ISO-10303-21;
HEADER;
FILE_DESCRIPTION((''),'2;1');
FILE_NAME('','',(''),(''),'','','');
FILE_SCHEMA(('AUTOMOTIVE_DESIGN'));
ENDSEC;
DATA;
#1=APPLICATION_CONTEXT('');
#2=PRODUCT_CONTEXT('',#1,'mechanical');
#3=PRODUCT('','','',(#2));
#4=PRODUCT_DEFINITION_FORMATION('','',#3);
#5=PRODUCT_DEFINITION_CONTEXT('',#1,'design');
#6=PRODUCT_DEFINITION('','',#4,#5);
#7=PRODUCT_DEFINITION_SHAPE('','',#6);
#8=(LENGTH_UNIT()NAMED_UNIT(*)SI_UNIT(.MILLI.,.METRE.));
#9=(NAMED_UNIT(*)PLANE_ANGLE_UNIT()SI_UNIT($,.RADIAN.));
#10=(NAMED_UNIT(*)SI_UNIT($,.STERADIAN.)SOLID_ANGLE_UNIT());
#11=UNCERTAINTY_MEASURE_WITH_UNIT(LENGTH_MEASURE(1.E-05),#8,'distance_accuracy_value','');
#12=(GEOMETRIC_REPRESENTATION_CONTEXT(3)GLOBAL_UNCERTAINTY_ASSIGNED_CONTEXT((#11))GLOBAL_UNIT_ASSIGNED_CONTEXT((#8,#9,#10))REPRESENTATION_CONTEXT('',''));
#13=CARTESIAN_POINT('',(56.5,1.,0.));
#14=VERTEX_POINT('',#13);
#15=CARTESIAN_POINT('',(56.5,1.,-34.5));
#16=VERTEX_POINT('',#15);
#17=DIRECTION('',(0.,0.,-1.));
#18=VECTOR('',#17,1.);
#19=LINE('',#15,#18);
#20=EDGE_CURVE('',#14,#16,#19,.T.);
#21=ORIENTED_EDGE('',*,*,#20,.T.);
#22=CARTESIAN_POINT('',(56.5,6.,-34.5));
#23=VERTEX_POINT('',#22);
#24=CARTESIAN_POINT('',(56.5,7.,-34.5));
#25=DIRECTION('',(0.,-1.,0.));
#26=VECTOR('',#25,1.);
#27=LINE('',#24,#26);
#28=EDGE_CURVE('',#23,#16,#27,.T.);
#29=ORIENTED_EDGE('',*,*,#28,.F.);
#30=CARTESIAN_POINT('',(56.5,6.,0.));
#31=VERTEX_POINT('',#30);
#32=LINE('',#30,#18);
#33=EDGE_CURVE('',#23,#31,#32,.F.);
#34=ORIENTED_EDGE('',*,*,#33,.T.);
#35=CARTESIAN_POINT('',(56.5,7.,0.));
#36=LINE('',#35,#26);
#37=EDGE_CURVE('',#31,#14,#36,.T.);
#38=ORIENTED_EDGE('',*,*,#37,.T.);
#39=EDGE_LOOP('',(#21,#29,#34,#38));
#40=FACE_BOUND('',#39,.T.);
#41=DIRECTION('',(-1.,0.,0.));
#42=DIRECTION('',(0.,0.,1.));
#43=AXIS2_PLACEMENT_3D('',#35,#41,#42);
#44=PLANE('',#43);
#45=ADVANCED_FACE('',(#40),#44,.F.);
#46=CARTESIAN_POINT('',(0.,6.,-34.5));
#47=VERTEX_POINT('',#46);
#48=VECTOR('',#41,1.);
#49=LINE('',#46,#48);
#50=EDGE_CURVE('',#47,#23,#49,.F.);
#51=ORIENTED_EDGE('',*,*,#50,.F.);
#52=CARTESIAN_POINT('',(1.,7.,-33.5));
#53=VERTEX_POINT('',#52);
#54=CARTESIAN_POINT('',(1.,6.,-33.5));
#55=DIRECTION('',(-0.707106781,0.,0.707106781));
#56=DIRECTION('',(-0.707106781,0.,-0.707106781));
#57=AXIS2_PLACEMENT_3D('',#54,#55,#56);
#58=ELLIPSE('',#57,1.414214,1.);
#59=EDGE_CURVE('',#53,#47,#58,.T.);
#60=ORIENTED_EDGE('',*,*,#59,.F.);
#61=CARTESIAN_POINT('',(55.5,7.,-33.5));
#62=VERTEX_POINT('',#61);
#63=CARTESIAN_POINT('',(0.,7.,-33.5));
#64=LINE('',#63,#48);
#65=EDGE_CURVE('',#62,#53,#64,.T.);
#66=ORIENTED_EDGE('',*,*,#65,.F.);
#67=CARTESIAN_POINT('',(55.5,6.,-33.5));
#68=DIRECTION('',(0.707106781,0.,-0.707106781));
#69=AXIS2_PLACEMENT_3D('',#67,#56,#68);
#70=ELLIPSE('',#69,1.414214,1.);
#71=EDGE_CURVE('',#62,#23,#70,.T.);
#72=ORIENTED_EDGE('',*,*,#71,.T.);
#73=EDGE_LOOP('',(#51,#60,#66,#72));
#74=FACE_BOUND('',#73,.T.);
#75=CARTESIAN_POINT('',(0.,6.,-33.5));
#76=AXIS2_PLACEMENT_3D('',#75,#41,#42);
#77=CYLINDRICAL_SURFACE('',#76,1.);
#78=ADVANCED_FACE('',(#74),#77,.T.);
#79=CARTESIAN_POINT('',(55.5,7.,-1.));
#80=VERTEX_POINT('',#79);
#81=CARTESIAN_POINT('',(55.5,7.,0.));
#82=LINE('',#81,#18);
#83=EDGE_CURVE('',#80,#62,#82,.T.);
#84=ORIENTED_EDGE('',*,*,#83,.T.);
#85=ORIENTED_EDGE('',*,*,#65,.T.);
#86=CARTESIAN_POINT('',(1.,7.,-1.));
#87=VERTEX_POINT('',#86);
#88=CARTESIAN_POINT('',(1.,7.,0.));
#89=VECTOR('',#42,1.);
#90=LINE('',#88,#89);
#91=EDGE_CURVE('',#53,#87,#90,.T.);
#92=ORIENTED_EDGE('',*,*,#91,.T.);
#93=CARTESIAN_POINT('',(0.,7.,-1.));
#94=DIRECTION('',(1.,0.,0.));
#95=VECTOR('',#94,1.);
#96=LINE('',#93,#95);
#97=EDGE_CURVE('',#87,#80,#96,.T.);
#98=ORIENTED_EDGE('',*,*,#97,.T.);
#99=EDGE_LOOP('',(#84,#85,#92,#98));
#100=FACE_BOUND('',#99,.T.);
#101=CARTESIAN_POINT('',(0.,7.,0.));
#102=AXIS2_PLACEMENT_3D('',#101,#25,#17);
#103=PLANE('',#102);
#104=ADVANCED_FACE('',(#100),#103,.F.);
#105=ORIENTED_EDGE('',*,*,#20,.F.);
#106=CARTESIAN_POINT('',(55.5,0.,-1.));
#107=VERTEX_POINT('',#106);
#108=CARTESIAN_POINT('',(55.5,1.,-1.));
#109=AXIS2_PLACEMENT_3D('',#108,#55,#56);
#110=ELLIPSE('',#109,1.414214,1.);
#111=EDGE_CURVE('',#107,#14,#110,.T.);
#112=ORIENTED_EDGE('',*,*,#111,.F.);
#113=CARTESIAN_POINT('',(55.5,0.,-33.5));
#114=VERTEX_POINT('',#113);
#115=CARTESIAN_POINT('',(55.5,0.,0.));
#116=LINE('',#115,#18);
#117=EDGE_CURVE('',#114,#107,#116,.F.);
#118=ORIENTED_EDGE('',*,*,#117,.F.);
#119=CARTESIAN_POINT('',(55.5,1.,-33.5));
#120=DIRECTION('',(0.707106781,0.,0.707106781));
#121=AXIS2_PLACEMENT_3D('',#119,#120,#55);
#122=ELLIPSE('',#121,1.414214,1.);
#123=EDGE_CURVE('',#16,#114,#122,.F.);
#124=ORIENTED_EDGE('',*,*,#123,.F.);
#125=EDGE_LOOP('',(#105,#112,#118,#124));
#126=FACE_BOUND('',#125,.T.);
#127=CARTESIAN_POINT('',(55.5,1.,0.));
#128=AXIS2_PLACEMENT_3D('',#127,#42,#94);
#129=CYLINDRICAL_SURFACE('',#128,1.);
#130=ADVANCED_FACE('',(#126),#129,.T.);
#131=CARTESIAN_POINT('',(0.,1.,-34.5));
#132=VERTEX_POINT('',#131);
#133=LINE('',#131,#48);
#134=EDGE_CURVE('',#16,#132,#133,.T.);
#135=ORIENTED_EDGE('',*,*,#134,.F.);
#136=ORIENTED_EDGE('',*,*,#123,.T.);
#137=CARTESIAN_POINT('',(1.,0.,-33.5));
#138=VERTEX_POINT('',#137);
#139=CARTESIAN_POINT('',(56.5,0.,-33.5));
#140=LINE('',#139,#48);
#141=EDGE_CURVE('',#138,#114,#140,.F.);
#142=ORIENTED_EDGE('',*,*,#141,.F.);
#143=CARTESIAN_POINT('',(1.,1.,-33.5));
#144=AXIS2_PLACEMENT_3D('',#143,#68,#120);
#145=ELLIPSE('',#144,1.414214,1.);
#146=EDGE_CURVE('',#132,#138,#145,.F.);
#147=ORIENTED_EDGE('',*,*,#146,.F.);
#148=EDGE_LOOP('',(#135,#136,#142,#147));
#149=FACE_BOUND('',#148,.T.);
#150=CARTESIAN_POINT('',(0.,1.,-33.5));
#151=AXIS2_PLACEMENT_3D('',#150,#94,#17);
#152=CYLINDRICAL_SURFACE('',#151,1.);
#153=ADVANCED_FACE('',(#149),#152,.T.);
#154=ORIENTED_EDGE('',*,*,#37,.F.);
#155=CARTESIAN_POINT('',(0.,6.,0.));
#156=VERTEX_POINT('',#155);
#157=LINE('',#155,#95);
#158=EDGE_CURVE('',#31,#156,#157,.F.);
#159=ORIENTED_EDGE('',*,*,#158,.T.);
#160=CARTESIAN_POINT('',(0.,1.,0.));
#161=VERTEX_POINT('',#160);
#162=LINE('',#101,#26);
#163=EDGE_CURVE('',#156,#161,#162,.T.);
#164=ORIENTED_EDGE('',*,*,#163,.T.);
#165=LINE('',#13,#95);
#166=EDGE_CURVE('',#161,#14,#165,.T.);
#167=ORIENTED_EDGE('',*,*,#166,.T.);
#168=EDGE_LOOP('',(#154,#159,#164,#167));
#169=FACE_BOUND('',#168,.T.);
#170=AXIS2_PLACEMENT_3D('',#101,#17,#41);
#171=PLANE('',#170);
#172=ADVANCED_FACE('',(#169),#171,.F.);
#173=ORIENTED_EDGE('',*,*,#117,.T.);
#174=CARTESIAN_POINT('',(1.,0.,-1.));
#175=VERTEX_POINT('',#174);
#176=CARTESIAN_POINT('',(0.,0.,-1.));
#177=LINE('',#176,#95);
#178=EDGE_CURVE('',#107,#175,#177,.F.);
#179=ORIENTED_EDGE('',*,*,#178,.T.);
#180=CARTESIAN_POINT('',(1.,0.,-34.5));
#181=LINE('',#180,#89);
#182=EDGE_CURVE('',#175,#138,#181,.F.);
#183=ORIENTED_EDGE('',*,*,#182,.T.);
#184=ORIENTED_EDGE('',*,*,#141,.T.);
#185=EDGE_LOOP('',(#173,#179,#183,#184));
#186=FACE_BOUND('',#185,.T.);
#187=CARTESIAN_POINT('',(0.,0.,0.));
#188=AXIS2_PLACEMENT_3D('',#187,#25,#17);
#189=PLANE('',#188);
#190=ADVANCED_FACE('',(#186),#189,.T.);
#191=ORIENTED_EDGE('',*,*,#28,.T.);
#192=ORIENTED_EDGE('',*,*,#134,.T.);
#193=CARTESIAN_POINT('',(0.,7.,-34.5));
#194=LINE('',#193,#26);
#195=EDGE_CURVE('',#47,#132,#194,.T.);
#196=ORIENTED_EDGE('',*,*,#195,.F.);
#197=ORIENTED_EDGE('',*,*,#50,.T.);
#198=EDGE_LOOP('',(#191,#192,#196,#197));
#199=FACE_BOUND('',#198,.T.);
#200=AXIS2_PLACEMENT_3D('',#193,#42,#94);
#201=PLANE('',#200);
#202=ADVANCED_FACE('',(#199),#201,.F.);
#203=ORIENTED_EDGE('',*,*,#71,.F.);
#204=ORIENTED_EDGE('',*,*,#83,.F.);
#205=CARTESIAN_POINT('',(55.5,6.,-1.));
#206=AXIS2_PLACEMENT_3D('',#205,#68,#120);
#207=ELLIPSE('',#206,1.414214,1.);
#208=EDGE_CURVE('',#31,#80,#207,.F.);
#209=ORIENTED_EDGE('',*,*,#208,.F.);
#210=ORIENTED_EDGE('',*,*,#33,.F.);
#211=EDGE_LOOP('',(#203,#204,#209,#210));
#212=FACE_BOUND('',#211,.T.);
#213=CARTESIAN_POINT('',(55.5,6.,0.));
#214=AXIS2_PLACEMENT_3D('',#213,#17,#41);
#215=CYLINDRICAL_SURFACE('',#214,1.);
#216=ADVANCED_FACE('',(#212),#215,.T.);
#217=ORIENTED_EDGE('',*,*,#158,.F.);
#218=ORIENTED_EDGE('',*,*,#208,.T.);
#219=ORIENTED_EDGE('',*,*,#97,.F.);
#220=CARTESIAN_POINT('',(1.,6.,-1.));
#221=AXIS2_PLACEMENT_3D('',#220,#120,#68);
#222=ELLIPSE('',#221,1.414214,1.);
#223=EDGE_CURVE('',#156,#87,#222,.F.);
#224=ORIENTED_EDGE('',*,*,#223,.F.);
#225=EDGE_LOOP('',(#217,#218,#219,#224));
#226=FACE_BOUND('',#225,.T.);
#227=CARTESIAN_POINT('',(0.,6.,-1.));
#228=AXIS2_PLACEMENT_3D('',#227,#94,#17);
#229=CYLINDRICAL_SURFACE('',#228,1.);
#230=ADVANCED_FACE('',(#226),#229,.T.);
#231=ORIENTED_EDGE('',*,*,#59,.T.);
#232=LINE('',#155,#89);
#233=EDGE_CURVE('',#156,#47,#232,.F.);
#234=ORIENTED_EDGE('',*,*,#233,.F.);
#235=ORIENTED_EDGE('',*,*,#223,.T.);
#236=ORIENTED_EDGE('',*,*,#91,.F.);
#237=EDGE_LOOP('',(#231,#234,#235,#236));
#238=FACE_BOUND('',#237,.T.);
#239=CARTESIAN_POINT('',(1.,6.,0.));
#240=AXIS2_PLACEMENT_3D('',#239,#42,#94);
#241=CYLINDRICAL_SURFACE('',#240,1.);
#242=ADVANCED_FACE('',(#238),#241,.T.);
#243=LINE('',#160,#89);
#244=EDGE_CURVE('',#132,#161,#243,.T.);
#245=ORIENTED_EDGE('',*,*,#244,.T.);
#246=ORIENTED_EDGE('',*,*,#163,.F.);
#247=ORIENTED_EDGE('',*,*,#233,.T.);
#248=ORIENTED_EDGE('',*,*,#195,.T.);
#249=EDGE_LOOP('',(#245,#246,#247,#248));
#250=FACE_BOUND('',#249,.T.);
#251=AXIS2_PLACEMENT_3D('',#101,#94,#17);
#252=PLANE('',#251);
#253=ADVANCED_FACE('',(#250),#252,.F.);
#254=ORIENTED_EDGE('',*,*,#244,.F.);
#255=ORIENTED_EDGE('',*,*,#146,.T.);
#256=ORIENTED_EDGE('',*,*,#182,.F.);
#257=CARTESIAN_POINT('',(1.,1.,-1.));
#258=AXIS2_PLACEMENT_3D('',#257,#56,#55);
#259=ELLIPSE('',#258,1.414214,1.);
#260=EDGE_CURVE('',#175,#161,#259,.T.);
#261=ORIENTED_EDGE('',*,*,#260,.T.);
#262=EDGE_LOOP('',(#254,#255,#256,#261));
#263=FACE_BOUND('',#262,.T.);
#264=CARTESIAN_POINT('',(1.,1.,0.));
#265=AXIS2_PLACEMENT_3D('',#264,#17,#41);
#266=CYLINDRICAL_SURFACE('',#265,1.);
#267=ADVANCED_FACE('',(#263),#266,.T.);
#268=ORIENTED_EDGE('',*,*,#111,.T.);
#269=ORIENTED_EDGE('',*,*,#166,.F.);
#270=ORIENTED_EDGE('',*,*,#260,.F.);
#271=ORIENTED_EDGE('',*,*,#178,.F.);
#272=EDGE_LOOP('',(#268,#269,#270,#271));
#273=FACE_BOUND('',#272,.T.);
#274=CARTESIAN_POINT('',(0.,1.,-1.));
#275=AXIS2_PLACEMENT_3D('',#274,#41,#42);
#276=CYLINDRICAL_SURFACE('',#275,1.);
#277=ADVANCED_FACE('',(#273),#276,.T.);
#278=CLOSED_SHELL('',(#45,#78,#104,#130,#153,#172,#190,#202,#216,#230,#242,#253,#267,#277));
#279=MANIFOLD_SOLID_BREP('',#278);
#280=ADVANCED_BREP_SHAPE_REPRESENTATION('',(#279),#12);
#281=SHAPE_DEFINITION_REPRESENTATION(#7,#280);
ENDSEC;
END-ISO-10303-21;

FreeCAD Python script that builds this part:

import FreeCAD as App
import Part
import Sketcher

V = App.Vector
Q = App.Units.Quantity


def edges_at(feature, points):
    """Names of the edges that pass closest to the given points."""
    edges = feature.Shape.Edges
    near = lambda p: min(range(len(edges)), key=lambda i: edges[i].distToShape(Part.Vertex(*p))[0])
    return sorted({f"Edge{near(p) + 1}" for p in points})


def add_polygon(sketch, points):
    """Adds a closed chain of lines whose ends are joined by coincident constraints."""
    first, n = sketch.GeometryCount, len(points)
    for a, b in zip(points, points[1:] + points[:1]):
        sketch.addGeometry(Part.LineSegment(App.Vector(*a, 0), App.Vector(*b, 0)), False)
    for i in range(n):
        sketch.addConstraint(Sketcher.Constraint("Coincident", first + i, 2, first + (i + 1) % n, 1))

doc = App.newDocument("Part")
body = doc.addObject("PartDesign::Body", "Body")

sketch1 = doc.addObject("Sketcher::SketchObject", "Sketch")
body.addObject(sketch1)
sketch1.AttachmentSupport = (doc.XZ_Plane, [""])
sketch1.MapMode = "FlatFace"
add_polygon(sketch1, [(0, -34), (0, 0), (56, 0), (56, -34)])
sketch1.addConstraint(Sketcher.Constraint("Vertical", 0))
sketch1.addConstraint(Sketcher.Constraint("Horizontal", 1))
sketch1.addConstraint(Sketcher.Constraint("Vertical", 2))
sketch1.addConstraint(Sketcher.Constraint("Horizontal", 3))
sketch1.addConstraint(Sketcher.Constraint("Coincident", 0, 2, -1, 1))
sketch1.addConstraint(Sketcher.Constraint("DistanceX", 1, 1, 1, 2, Q("56.5 mm")))
sketch1.addConstraint(Sketcher.Constraint("DistanceY", 0, 1, 0, 2, Q("34.5 mm")))
pad1 = doc.addObject("PartDesign::Pad", "Pad")
body.addObject(pad1)
pad1.Profile = sketch1
pad1.Length = 7
pad1.Reversed = True
doc.recompute()

fillet = doc.addObject("PartDesign::Fillet", "Fillet")
body.addObject(fillet)
fillet.Base = (pad1, edges_at(pad1, [
    (56.5, 7, -17.25),
    (28.25, 7, -34.5),
    (0, 7, -17.25),
    (28.25, 0, -34.5),
    (56.5, 0, -17.25),
    (28.25, 0, 0),
    (0, 0, -17.25),
    (28.25, 7, 0),
]))
fillet.Radius = 1

doc.recompute()
